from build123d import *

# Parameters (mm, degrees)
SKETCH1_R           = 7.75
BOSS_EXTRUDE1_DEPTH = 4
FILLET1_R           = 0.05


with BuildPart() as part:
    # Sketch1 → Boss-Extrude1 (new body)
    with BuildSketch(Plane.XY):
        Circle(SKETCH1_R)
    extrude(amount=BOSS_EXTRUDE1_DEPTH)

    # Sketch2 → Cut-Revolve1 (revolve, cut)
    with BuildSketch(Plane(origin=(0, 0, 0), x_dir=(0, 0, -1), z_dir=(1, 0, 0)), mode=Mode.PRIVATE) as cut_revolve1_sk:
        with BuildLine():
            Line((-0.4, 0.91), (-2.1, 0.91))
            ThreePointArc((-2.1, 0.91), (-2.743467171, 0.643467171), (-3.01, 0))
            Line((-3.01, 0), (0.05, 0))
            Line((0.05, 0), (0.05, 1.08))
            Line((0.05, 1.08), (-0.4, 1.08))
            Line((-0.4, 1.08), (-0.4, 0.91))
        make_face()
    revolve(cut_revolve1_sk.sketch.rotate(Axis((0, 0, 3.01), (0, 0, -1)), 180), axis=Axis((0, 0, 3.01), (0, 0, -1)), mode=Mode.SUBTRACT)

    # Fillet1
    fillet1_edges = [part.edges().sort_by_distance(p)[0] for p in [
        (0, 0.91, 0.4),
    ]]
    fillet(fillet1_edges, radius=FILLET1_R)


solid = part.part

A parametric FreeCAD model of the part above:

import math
import FreeCAD as App
import Part
import Sketcher
from FreeCAD import Vector
Q = App.Units.Quantity


def edges_at(feature, points):
    """Names of the edges that pass closest to the given points."""
    edges = feature.Shape.Edges
    near = lambda p: min(range(len(edges)), key=lambda i: edges[i].distToShape(Part.Vertex(*p))[0])
    return sorted({f"Edge{near(p) + 1}" for p in points})

doc = App.newDocument("Part")
body = doc.addObject("PartDesign::Body", "Body")

# Sketch on XY plane
sketch1 = body.newObject("Sketcher::SketchObject", "Sketch")
sketch1.AttachmentSupport = (doc.getObject("XY_Plane"), [""])
sketch1.MapMode = "FlatFace"
sketch1.addGeometry(Part.Circle(Vector(0, 0, 0), Vector(0, 0, 1), 7.75), False)
sketch1.addConstraint(Sketcher.Constraint("Coincident", 0, 3, -1, 1))
sketch1.addConstraint(Sketcher.Constraint("Diameter", 0, Q("15.5 mm")))
pad1 = body.newObject("PartDesign::Pad", "Pad")
pad1.Profile = sketch1
pad1.Length = 4

# Sketch on YZ plane
sketch2 = body.newObject("Sketcher::SketchObject", "Sketch001")
sketch2.AttachmentSupport = (doc.getObject("YZ_Plane"), [""])
sketch2.MapMode = "FlatFace"
sketch2.addGeometry(Part.LineSegment(Vector(0.91, 0.4, 0), Vector(0.91, 2.1, 0)), False)
sketch2.addGeometry(Part.ArcOfCircle(Part.Circle(Vector(0, 2.1, 0), Vector(0, 0, 1), 0.91), math.radians(0), math.radians(90)), False)
sketch2.addGeometry(Part.LineSegment(Vector(0, 3.01, 0), Vector(0, -0.05, 0)), False)
sketch2.addGeometry(Part.LineSegment(Vector(0, -0.05, 0), Vector(1.08, -0.05, 0)), False)
sketch2.addGeometry(Part.LineSegment(Vector(1.08, -0.05, 0), Vector(1.08, 0.4, 0)), False)
sketch2.addGeometry(Part.LineSegment(Vector(1.08, 0.4, 0), Vector(0.91, 0.4, 0)), False)
sketch2.addConstraint(Sketcher.Constraint("Tangent", 0, 2, 1, 1))
sketch2.addConstraint(Sketcher.Constraint("Coincident", 1, 2, 2, 1))
sketch2.addConstraint(Sketcher.Constraint("Coincident", 2, 2, 3, 1))
sketch2.addConstraint(Sketcher.Constraint("Coincident", 3, 2, 4, 1))
sketch2.addConstraint(Sketcher.Constraint("Coincident", 4, 2, 5, 1))
sketch2.addConstraint(Sketcher.Constraint("Coincident", 5, 2, 0, 1))
sketch2.addConstraint(Sketcher.Constraint("Vertical", 0))
sketch2.addConstraint(Sketcher.Constraint("Vertical", 2))
sketch2.addConstraint(Sketcher.Constraint("Horizontal", 3))
sketch2.addConstraint(Sketcher.Constraint("Vertical", 4))
sketch2.addConstraint(Sketcher.Constraint("Horizontal", 5))
sketch2.addConstraint(Sketcher.Constraint("PointOnObject", 1, 3, -2))
sketch2.addConstraint(Sketcher.Constraint("PointOnObject", 1, 2, -2))
sketch2.addConstraint(Sketcher.Constraint("Radius", 1, Q("0.91 mm")))
sketch2.addConstraint(Sketcher.Constraint("DistanceY", 0, 1, 0, 2, Q("1.7 mm")))
sketch2.addConstraint(Sketcher.Constraint("DistanceX", 3, 1, 3, 2, Q("1.08 mm")))
sketch2.addConstraint(Sketcher.Constraint("DistanceY", 2, 2, 2, 1, Q("3.06 mm")))
sketch2.addConstraint(Sketcher.Constraint("DistanceY", -1, 1, 1, 3, Q("2.1 mm")))
groove = body.newObject("PartDesign::Groove", "Groove")
groove.Profile = sketch2
groove.ReferenceAxis = (sketch2, ["V_Axis"])
groove.Angle = 360
doc.recompute()

fillet = body.newObject("PartDesign::Fillet", "Fillet")
fillet.Base = (groove, edges_at(groove, [(0, 0.91, 0.4)]))
fillet.Radius = 0.05

doc.recompute()
